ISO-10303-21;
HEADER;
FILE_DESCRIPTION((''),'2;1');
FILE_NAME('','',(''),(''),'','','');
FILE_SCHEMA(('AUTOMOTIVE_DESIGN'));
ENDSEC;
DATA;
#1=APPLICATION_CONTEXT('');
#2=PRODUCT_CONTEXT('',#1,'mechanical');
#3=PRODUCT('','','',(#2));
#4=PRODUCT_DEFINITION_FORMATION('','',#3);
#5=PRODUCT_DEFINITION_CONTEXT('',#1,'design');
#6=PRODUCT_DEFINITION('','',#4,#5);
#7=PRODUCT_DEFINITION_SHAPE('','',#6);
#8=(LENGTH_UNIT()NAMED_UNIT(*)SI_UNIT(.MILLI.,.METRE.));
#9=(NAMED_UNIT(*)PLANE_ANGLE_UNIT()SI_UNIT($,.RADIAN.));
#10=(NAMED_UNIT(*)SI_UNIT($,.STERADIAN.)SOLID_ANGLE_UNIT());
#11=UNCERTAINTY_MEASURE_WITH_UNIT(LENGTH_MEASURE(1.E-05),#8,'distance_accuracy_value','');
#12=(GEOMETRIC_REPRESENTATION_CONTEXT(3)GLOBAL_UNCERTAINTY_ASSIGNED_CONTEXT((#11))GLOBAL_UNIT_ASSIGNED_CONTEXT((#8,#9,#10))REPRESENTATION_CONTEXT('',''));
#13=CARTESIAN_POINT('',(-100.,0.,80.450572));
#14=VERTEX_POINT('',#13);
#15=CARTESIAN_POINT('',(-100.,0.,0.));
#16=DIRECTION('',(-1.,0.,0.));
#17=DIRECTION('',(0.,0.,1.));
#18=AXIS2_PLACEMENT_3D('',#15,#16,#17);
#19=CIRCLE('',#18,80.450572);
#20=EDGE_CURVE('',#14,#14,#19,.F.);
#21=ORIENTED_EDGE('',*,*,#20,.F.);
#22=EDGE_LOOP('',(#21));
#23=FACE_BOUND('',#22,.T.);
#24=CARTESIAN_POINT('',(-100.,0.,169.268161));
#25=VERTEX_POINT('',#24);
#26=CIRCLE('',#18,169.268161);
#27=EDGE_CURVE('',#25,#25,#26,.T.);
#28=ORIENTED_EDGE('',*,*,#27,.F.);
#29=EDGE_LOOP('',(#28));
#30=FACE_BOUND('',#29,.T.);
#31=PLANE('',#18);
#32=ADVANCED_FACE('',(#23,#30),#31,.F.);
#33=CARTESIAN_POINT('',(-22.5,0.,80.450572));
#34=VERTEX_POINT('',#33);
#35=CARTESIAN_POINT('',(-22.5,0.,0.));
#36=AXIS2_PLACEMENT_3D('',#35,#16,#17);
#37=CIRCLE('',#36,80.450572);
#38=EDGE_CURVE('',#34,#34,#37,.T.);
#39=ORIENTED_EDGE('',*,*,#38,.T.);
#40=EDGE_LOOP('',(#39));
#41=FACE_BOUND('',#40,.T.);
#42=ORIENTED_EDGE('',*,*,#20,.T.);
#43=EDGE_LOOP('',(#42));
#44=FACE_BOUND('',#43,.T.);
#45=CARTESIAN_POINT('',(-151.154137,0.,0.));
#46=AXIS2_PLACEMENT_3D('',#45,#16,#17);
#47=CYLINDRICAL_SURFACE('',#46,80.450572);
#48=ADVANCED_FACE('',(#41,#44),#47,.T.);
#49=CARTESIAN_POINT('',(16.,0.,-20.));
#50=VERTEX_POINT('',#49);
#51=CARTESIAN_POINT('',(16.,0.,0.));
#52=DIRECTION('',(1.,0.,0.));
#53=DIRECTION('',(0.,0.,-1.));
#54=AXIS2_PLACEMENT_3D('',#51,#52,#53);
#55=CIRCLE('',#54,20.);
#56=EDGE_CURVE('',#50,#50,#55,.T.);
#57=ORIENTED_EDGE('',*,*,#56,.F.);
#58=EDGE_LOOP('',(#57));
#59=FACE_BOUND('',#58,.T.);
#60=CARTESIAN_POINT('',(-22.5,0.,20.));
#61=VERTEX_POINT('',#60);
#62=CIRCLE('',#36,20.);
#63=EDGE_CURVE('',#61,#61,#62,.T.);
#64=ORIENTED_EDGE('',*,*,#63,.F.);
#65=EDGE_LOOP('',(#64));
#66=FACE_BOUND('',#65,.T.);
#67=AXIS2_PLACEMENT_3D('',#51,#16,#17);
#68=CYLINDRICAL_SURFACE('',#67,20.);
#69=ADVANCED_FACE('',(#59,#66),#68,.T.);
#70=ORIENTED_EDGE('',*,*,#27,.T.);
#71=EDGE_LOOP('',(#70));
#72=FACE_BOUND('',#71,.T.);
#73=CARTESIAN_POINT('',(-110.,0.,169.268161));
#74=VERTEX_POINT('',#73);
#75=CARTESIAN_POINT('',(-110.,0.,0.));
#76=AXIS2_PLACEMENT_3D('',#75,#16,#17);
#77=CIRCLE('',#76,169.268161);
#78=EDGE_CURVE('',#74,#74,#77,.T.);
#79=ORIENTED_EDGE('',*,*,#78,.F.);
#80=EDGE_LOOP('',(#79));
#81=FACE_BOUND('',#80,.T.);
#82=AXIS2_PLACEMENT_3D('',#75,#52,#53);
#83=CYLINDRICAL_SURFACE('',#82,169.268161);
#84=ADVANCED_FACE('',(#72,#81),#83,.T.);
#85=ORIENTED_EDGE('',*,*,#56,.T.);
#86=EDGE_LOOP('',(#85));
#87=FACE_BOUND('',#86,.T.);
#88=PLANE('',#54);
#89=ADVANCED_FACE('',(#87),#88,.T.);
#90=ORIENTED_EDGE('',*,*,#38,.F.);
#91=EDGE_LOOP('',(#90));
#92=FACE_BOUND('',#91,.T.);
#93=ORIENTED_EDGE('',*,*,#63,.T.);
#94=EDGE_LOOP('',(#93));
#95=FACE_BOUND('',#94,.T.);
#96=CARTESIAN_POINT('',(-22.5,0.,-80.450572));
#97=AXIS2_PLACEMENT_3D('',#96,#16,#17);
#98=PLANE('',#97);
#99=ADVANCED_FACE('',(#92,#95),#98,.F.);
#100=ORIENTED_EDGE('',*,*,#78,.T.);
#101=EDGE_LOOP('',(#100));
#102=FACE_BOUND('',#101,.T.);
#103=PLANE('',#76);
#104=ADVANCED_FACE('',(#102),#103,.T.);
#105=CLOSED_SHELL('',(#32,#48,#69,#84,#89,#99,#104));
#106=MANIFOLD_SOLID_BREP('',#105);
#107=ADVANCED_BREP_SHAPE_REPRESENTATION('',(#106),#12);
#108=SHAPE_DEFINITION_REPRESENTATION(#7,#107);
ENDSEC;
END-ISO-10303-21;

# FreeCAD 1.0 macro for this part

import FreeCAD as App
import Part
import Sketcher

V = App.Vector
Q = App.Units.Quantity


def edges_at(feature, points):
    """Names of the edges that pass closest to the given points."""
    edges = feature.Shape.Edges
    near = lambda p: min(range(len(edges)), key=lambda i: edges[i].distToShape(Part.Vertex(*p))[0])
    return sorted({f"Edge{near(p) + 1}" for p in points})

doc = App.newDocument("Part")
body = doc.addObject("PartDesign::Body", "Body")

# Sketch on YZ plane
sketch1 = body.newObject("Sketcher::SketchObject", "Sketch")
sketch1.AttachmentSupport = (doc.getObject("YZ_Plane"), [""])
sketch1.MapMode = "FlatFace"
sketch1.addGeometry(Part.Circle(V(0, 0, 0), V(0, 0, 1), 50), False)
sketch1.addConstraint(Sketcher.Constraint("Coincident", 0, 3, -1, 1))
sketch1.addConstraint(Sketcher.Constraint("Diameter", 0, Q("100 mm")))
pad1 = body.newObject("PartDesign::Pad", "Pad")
pad1.Profile = sketch1
pad1.Length = 140

# Sketch on XZ plane
sketch2 = body.newObject("Sketcher::SketchObject", "Sketch001")
sketch2.AttachmentSupport = (doc.getObject("XZ_Plane"), [""])
sketch2.MapMode = "FlatFace"
sketch2.addGeometry(Part.LineSegment(V(10, -60, 0), V(10, 0, 0)), False)
sketch2.addGeometry(Part.LineSegment(V(10, 0, 0), V(20, 0, 0)), False)
sketch2.addGeometry(Part.LineSegment(V(20, 0, 0), V(20, -60, 0)), False)
sketch2.addGeometry(Part.LineSegment(V(20, -60, 0), V(10, -60, 0)), False)
sketch2.addGeometry(Part.LineSegment(V(120, -60, 0), V(120, 0, 0)), False)
sketch2.addGeometry(Part.LineSegment(V(120, 0, 0), V(130, 0, 0)), False)
sketch2.addGeometry(Part.LineSegment(V(130, 0, 0), V(130, -60, 0)), False)
sketch2.addGeometry(Part.LineSegment(V(130, -60, 0), V(120, -60, 0)), False)
sketch2.addConstraint(Sketcher.Constraint("Coincident", 0, 2, 1, 1))
sketch2.addConstraint(Sketcher.Constraint("Coincident", 1, 2, 2, 1))
sketch2.addConstraint(Sketcher.Constraint("Coincident", 2, 2, 3, 1))
sketch2.addConstraint(Sketcher.Constraint("Coincident", 3, 2, 0, 1))
sketch2.addConstraint(Sketcher.Constraint("Coincident", 4, 2, 5, 1))
sketch2.addConstraint(Sketcher.Constraint("Coincident", 5, 2, 6, 1))
sketch2.addConstraint(Sketcher.Constraint("Coincident", 6, 2, 7, 1))
sketch2.addConstraint(Sketcher.Constraint("Coincident", 7, 2, 4, 1))
sketch2.addConstraint(Sketcher.Constraint("Vertical", 0))
sketch2.addConstraint(Sketcher.Constraint("Horizontal", 1))
sketch2.addConstraint(Sketcher.Constraint("Vertical", 2))
sketch2.addConstraint(Sketcher.Constraint("Horizontal", 3))
sketch2.addConstraint(Sketcher.Constraint("Vertical", 4))
sketch2.addConstraint(Sketcher.Constraint("Horizontal", 5))
sketch2.addConstraint(Sketcher.Constraint("Vertical", 6))
sketch2.addConstraint(Sketcher.Constraint("Horizontal", 7))
sketch2.addConstraint(Sketcher.Constraint("PointOnObject", 0, 2, -1))
sketch2.addConstraint(Sketcher.Constraint("PointOnObject", 4, 2, -1))
sketch2.addConstraint(Sketcher.Constraint("Horizontal", 3, 2, 6, 2))
sketch2.addConstraint(Sketcher.Constraint("Equal", 3, 5))
sketch2.addConstraint(Sketcher.Constraint("DistanceX", 1, 1, 1, 2, Q("10 mm")))
sketch2.addConstraint(Sketcher.Constraint("DistanceY", 0, 1, 0, 2, Q("60 mm")))
sketch2.addConstraint(Sketcher.Constraint("DistanceX", -1, 1, 0, 2, Q("10 mm")))
sketch2.addConstraint(Sketcher.Constraint("DistanceX", -1, 1, 4, 2, Q("120 mm")))
revolution = body.newObject("PartDesign::Revolution", "Revolution")
revolution.Profile = sketch2
revolution.ReferenceAxis = (sketch2, ["H_Axis"])
revolution.Angle = 360

# Sketch on YZ plane
sketch3 = body.newObject("Sketcher::SketchObject", "Sketch002")
sketch3.AttachmentSupport = (doc.getObject("YZ_Plane"), [""])
sketch3.MapMode = "FlatFace"
sketch3.AttachmentOffset = App.Placement(V(0, 0, -100), App.Rotation())
sketch3.addGeometry(Part.Circle(V(0, 0, 0), V(0, 0, 1), 50), False)
sketch3.addConstraint(Sketcher.Constraint("Coincident", 0, 3, -1, 1))
sketch3.addConstraint(Sketcher.Constraint("Diameter", 0, Q("100 mm")))
pad2 = body.newObject("PartDesign::Pad", "Pad001")
pad2.Profile = sketch3
pad2.Length = 100

# Sketch on YZ plane
sketch4 = body.newObject("Sketcher::SketchObject", "Sketch003")
sketch4.AttachmentSupport = (doc.getObject("YZ_Plane"), [""])
sketch4.MapMode = "FlatFace"
sketch4.AttachmentOffset = App.Placement(V(0, 0, -100), App.Rotation())
sketch4.addGeometry(Part.Circle(V(0, 0, 0), V(0, 0, 1), 169), False)
sketch4.addConstraint(Sketcher.Constraint("Coincident", 0, 3, -1, 1))
sketch4.addConstraint(Sketcher.Constraint("Diameter", 0, Q("338.536323 mm")))
pad3 = body.newObject("PartDesign::Pad", "Pad002")
pad3.Profile = sketch4
pad3.Length = 10
pad3.Reversed = True
doc.recompute()

fillet = body.newObject("PartDesign::Fillet", "Fillet")
fillet.Base = (pad3, edges_at(pad3, [(-100, 0, -50)]))
fillet.Radius = 50

# Sketch on XZ plane
sketch5 = body.newObject("Sketcher::SketchObject", "Sketch004")
sketch5.AttachmentSupport = (doc.getObject("XZ_Plane"), [""])
sketch5.MapMode = "FlatFace"
sketch5.addGeometry(Part.LineSegment(V(-100, -302, 0), V(-100, 302, 0)), False)
sketch5.addGeometry(Part.LineSegment(V(-100, 302, 0), V(462, 302, 0)), False)
sketch5.addGeometry(Part.LineSegment(V(462, 302, 0), V(462, -302, 0)), False)
sketch5.addGeometry(Part.LineSegment(V(462, -302, 0), V(-100, -302, 0)), False)
sketch5.addConstraint(Sketcher.Constraint("Coincident", 0, 2, 1, 1))
sketch5.addConstraint(Sketcher.Constraint("Coincident", 1, 2, 2, 1))
sketch5.addConstraint(Sketcher.Constraint("Coincident", 2, 2, 3, 1))
sketch5.addConstraint(Sketcher.Constraint("Coincident", 3, 2, 0, 1))
sketch5.addConstraint(Sketcher.Constraint("Vertical", 0))
sketch5.addConstraint(Sketcher.Constraint("Horizontal", 1))
sketch5.addConstraint(Sketcher.Constraint("Vertical", 2))
sketch5.addConstraint(Sketcher.Constraint("Horizontal", 3))
sketch5.addConstraint(Sketcher.Constraint("DistanceX", 0, 2, -1, 1, Q("100 mm")))
sketch5.addConstraint(Sketcher.Constraint("DistanceX", 1, 1, 1, 2, Q("561.70684 mm")))
sketch5.addConstraint(Sketcher.Constraint("DistanceY", 0, 1, 0, 2, Q("604.768431 mm")))
sketch5.addConstraint(Sketcher.Constraint("DistanceY", -1, 1, 0, 2, Q("302.384216 mm")))
pocket1 = body.newObject("PartDesign::Pocket", "Pocket")
pocket1.Profile = sketch5
pocket1.Type = "ThroughAll"
pocket1.Midplane = True

# Sketch on YZ plane
sketch6 = body.newObject("Sketcher::SketchObject", "Sketch005")
sketch6.AttachmentSupport = (doc.getObject("YZ_Plane"), [""])
sketch6.MapMode = "FlatFace"
sketch6.AttachmentOffset = App.Placement(V(0, 0, -100), App.Rotation())
sketch6.addGeometry(Part.Circle(V(0, 0, 0), V(0, 0, 1), 20), False)
sketch6.addConstraint(Sketcher.Constraint("Coincident", 0, 3, -1, 1))
sketch6.addConstraint(Sketcher.Constraint("Diameter", 0, Q("40 mm")))
pad4 = body.newObject("PartDesign::Pad", "Pad003")
pad4.Profile = sketch6
pad4.Length = 116

# Sketch on XZ plane
sketch7 = body.newObject("Sketcher::SketchObject", "Sketch006")
sketch7.AttachmentSupport = (doc.getObject("XZ_Plane"), [""])
sketch7.MapMode = "FlatFace"
sketch7.addGeometry(Part.LineSegment(V(-100, -80, 0), V(-100, 0, 0)), False)
sketch7.addGeometry(Part.LineSegment(V(-100, 0, 0), V(-22, 0, 0)), False)
sketch7.addGeometry(Part.LineSegment(V(-22, 0, 0), V(-22, -80, 0)), False)
sketch7.addGeometry(Part.LineSegment(V(-22, -80, 0), V(-100, -80, 0)), False)
sketch7.addConstraint(Sketcher.Constraint("Coincident", 0, 2, 1, 1))
sketch7.addConstraint(Sketcher.Constraint("Coincident", 1, 2, 2, 1))
sketch7.addConstraint(Sketcher.Constraint("Coincident", 2, 2, 3, 1))
sketch7.addConstraint(Sketcher.Constraint("Coincident", 3, 2, 0, 1))
sketch7.addConstraint(Sketcher.Constraint("Vertical", 0))
sketch7.addConstraint(Sketcher.Constraint("Horizontal", 1))
sketch7.addConstraint(Sketcher.Constraint("Vertical", 2))
sketch7.addConstraint(Sketcher.Constraint("Horizontal", 3))
sketch7.addConstraint(Sketcher.Constraint("PointOnObject", 0, 2, -1))
sketch7.addConstraint(Sketcher.Constraint("DistanceX", 1, 1, 1, 2, Q("77.5 mm")))
sketch7.addConstraint(Sketcher.Constraint("DistanceX", 0, 2, -1, 1, Q("100 mm")))
sketch7.addConstraint(Sketcher.Constraint("DistanceY", 0, 1, 0, 2, Q("80.450572 mm")))
revolution2 = body.newObject("PartDesign::Revolution", "Revolution001")
revolution2.Profile = sketch7
revolution2.ReferenceAxis = (sketch7, ["H_Axis"])
revolution2.Angle = 360

doc.recompute()
